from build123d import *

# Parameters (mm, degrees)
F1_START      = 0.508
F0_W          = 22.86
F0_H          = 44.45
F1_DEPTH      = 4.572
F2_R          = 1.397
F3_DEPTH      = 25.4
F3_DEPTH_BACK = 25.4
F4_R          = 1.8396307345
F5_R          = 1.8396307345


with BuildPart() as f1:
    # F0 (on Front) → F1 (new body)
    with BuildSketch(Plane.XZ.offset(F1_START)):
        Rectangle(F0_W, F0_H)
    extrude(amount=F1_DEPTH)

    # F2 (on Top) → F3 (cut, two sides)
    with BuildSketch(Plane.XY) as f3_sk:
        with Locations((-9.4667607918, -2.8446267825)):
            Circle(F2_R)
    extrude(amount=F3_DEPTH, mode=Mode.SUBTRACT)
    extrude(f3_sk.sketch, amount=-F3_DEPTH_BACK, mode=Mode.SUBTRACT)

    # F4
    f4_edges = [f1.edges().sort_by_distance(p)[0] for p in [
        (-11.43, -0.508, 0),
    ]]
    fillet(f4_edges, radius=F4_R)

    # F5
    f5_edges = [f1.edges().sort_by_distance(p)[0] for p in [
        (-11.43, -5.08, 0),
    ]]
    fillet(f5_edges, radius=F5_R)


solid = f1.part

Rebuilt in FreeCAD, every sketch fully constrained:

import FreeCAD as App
import Part
import Sketcher
from FreeCAD import Vector
Q = App.Units.Quantity


def edges_at(feature, points):
    """Names of the edges that pass closest to the given points."""
    edges = feature.Shape.Edges
    near = lambda p: min(range(len(edges)), key=lambda i: edges[i].distToShape(Part.Vertex(*p))[0])
    return sorted({f"Edge{near(p) + 1}" for p in points})

doc = App.newDocument("Part")
body = doc.addObject("PartDesign::Body", "Body")

# Sketch on XZ plane
sketch1 = body.newObject("Sketcher::SketchObject", "Sketch")
sketch1.AttachmentSupport = (doc.getObject("XZ_Plane"), [""])
sketch1.MapMode = "FlatFace"
sketch1.AttachmentOffset = App.Placement(Vector(0, 0, 0.02 * 25.4), App.Rotation())
sketch1.addGeometry([
    Part.LineSegment(Vector(-11, 22, 0), Vector(-11, -22, 0)),
    Part.LineSegment(Vector(-11, -22, 0), Vector(11, -22, 0)),
    Part.LineSegment(Vector(11, -22, 0), Vector(11, 22, 0)),
    Part.LineSegment(Vector(11, 22, 0), Vector(-11, 22, 0)),
], False)
sketch1.addConstraint([
    Sketcher.Constraint("Coincident", 0, 2, 1, 1),
    Sketcher.Constraint("Coincident", 1, 2, 2, 1),
    Sketcher.Constraint("Coincident", 2, 2, 3, 1),
    Sketcher.Constraint("Coincident", 3, 2, 0, 1),
    Sketcher.Constraint("Vertical", 0),
    Sketcher.Constraint("Horizontal", 1),
    Sketcher.Constraint("Vertical", 2),
    Sketcher.Constraint("Horizontal", 3),
    Sketcher.Constraint("Symmetric", 0, 2, 2, 2, -1, 1),
    Sketcher.Constraint("DistanceX", 1, 1, 1, 2, Q("0.9 in")),
    Sketcher.Constraint("DistanceY", 0, 2, 0, 1, Q("1.75 in")),
])
pad1 = body.newObject("PartDesign::Pad", "Pad")
pad1.Profile = sketch1
pad1.Length = Q("0.18 in")

# Sketch on XY plane
sketch2 = body.newObject("Sketcher::SketchObject", "Sketch001")
sketch2.AttachmentSupport = (doc.getObject("XY_Plane"), [""])
sketch2.MapMode = "FlatFace"
sketch2.addGeometry(Part.Circle(Vector(-9.5, -2.8, 0), Vector(0, 0, 1), 1.4), False)
sketch2.addConstraint([
    Sketcher.Constraint("Diameter", 0, Q("0.11 in")),
    Sketcher.Constraint("DistanceX", 0, 3, -1, 1, Q("9.466761 mm")),
    Sketcher.Constraint("DistanceY", 0, 3, -1, 1, Q("2.844627 mm")),
])
pocket1 = body.newObject("PartDesign::Pocket", "Pocket")
pocket1.Profile = sketch2
pocket1.Type = "ThroughAll"
pocket1.Midplane = True
doc.recompute()

fillet = body.newObject("PartDesign::Fillet", "Fillet")
fillet.Base = (pocket1, edges_at(pocket1, [(-11.43, -0.508, 0)]))
fillet.Radius = 1.839631
doc.recompute()

fillet2 = body.newObject("PartDesign::Fillet", "Fillet001")
fillet2.Base = (fillet, edges_at(fillet, [(-11.43, -5.08, 0)]))
fillet2.Radius = 1.839631

doc.recompute()
